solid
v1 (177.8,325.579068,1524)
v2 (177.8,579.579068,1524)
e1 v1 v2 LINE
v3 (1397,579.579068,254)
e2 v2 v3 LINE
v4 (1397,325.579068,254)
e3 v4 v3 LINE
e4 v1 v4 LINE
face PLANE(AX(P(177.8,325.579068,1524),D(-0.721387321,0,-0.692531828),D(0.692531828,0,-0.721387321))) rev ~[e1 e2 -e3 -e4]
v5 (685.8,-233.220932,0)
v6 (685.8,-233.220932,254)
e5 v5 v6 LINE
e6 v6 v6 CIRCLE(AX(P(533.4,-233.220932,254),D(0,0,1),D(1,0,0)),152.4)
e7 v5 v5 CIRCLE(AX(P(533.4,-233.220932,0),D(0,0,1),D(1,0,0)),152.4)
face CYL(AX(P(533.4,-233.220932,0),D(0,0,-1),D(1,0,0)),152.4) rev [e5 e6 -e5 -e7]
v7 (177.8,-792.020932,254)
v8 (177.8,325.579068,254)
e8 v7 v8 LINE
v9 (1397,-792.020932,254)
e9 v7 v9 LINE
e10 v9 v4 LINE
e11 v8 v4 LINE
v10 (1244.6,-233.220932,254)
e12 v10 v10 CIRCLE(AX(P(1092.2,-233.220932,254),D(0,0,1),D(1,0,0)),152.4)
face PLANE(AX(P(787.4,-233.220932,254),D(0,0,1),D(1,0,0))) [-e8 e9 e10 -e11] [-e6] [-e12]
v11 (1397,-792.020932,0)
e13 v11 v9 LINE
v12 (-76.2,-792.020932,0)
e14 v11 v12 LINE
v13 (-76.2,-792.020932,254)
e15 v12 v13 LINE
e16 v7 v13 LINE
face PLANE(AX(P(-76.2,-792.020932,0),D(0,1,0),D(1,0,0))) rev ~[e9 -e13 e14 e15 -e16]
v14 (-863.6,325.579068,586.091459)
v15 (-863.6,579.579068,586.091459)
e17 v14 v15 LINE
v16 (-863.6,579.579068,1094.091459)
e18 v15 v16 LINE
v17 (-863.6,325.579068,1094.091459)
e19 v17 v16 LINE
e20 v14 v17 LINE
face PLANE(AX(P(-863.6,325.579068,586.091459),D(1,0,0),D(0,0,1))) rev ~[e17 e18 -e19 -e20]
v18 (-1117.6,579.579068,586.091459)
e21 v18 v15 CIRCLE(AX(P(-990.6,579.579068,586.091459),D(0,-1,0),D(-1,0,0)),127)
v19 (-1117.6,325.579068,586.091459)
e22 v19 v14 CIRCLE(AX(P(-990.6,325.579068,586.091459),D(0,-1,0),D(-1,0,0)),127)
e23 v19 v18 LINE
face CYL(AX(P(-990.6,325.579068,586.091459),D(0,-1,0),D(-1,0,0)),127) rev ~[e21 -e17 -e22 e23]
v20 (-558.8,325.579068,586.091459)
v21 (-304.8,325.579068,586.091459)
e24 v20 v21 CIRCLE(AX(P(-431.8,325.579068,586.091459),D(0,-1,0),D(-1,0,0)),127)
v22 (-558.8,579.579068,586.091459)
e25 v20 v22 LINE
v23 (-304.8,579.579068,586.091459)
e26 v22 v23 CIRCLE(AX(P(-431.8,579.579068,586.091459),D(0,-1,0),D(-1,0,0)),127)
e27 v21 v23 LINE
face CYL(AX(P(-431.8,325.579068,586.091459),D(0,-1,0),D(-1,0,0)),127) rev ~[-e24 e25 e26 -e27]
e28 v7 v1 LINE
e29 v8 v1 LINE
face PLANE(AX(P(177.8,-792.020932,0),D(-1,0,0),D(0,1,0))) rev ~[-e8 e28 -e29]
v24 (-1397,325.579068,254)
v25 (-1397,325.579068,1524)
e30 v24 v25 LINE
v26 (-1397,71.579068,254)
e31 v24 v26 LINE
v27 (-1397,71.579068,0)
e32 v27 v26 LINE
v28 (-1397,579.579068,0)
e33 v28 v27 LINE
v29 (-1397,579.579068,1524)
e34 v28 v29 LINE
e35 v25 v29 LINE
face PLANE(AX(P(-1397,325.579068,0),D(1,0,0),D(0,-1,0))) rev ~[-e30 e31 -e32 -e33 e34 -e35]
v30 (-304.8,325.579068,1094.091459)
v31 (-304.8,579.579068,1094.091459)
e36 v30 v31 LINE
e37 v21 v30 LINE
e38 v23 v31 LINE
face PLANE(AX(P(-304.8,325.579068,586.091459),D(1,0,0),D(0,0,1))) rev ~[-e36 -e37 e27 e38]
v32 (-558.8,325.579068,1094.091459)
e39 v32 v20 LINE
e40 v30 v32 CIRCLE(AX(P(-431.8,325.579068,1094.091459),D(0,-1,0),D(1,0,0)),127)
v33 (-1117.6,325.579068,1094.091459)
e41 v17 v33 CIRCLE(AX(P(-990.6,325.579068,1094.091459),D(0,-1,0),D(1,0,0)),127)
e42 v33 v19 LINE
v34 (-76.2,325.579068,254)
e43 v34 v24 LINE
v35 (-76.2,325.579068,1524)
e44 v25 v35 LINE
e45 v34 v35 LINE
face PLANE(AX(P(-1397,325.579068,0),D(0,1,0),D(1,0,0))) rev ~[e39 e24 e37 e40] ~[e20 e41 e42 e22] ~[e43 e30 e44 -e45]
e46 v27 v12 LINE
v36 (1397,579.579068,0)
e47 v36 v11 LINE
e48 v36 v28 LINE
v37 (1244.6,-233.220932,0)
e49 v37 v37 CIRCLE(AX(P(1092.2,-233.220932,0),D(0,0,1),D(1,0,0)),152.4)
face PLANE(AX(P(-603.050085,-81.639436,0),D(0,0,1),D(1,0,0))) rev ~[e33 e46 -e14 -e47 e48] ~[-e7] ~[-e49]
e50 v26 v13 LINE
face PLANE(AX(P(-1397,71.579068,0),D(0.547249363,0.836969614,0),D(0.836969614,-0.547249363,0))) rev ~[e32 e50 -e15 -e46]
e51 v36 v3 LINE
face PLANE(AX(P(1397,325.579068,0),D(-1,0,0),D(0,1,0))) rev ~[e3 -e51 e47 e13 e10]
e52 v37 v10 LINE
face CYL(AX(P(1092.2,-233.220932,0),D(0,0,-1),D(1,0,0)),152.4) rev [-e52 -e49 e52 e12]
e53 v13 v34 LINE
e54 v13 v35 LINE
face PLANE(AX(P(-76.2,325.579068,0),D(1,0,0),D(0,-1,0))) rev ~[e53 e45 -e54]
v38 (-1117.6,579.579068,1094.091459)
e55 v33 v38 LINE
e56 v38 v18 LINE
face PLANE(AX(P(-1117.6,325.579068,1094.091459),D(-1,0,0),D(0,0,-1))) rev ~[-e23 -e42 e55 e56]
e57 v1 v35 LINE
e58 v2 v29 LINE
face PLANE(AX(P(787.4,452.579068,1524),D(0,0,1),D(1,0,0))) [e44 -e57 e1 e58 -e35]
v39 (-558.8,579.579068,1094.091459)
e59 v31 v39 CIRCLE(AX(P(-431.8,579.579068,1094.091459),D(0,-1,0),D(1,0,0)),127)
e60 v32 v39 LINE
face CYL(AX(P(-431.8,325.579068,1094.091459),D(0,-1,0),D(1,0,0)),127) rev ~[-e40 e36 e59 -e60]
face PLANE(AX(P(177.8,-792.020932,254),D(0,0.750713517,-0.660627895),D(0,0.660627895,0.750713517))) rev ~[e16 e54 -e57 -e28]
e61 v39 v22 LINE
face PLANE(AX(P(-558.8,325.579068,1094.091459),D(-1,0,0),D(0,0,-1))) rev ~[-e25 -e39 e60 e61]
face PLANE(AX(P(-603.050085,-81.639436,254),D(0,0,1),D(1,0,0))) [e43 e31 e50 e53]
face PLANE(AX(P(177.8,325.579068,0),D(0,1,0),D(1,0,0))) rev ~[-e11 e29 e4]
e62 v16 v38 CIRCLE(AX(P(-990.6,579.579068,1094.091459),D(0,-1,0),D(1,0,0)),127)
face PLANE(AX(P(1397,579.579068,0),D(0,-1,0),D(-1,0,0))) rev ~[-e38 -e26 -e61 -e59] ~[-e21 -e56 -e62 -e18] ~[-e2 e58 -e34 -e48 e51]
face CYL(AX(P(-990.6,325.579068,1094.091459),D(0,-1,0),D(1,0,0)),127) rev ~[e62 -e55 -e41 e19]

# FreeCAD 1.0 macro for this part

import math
import FreeCAD as App
import Part
import Sketcher

V = App.Vector
Q = App.Units.Quantity


def add_polygon(sketch, points):
    """Adds a closed chain of lines whose ends are joined by coincident constraints."""
    first, n = sketch.GeometryCount, len(points)
    for a, b in zip(points, points[1:] + points[:1]):
        sketch.addGeometry(Part.LineSegment(App.Vector(*a, 0), App.Vector(*b, 0)), False)
    for i in range(n):
        sketch.addConstraint(Sketcher.Constraint("Coincident", first + i, 2, first + (i + 1) % n, 1))

doc = App.newDocument("Part")
body = doc.addObject("PartDesign::Body", "Body")

# Sketch on XY plane
sketch1 = doc.addObject("Sketcher::SketchObject", "Sketch")
body.addObject(sketch1)
sketch1.AttachmentSupport = (doc.XY_Plane, [""])
sketch1.MapMode = "FlatFace"
add_polygon(sketch1, [(178, 326), (1397, 326), (1397, 580), (-1397, 580), (-1397, 326), (-76, 326), (-76, -792), (178, -792)])  # lines 0-7
sketch1.addConstraint([
    Sketcher.Constraint("Horizontal", 0),
    Sketcher.Constraint("Vertical", 1),
    Sketcher.Constraint("Horizontal", 2),
    Sketcher.Constraint("Vertical", 3),
    Sketcher.Constraint("Horizontal", 4),
    Sketcher.Constraint("Vertical", 5),
    Sketcher.Constraint("Horizontal", 6),
    Sketcher.Constraint("Vertical", 7),
    Sketcher.Constraint("Symmetric", 0, 2, 3, 2, -2),
    Sketcher.Constraint("Equal", 6, 1),
    Sketcher.Constraint("DistanceX", 0, 1, 0, 2, Q("48 in")),
    Sketcher.Constraint("DistanceX", 2, 2, 2, 1, Q("110 in")),
    Sketcher.Constraint("DistanceX", 4, 1, 4, 2, Q("52 in")),
    Sketcher.Constraint("DistanceY", 5, 2, 5, 1, Q("44 in")),
    Sketcher.Constraint("DistanceY", -1, 1, 0, 2, 325.579068),
])
pad1 = doc.addObject("PartDesign::Pad", "Pad")
body.addObject(pad1)
pad1.Profile = sketch1
pad1.Length = Q("60 in")

# Sketch on XY plane
sketch2 = doc.addObject("Sketcher::SketchObject", "Sketch001")
body.addObject(sketch2)
sketch2.AttachmentSupport = (doc.XY_Plane, [""])
sketch2.MapMode = "FlatFace"
add_polygon(sketch2, [(-76, 326), (-1397, 326), (-1397, 72), (-76, -792)])  # lines 0-3
add_polygon(sketch2, [(178, 326), (178, -792), (1397, -792), (1397, 326)])  # lines 4-7
sketch2.addGeometry(Part.Circle(V(533, -233, 0), V(0, 0, 1), 152), False)  # 8
sketch2.addGeometry(Part.Circle(V(1092, -233, 0), V(0, 0, 1), 152), False)  # 9
sketch2.addConstraint([
    Sketcher.Constraint("Horizontal", 0),
    Sketcher.Constraint("Vertical", 1),
    Sketcher.Constraint("Vertical", 3),
    Sketcher.Constraint("Vertical", 4),
    Sketcher.Constraint("Horizontal", 5),
    Sketcher.Constraint("Vertical", 6),
    Sketcher.Constraint("Horizontal", 7),
    Sketcher.Constraint("Equal", 8, 9),
    Sketcher.Constraint("Symmetric", 0, 2, 6, 2, -2),
    Sketcher.Constraint("Horizontal", 8, 3, 9, 3),
    Sketcher.Constraint("Horizontal", 2, 2, 4, 2),
    Sketcher.Constraint("Diameter", 8, Q("12 in")),
    Sketcher.Constraint("DistanceX", 0, 2, 0, 1, Q("52 in")),
    Sketcher.Constraint("DistanceX", 5, 1, 5, 2, Q("48 in")),
    Sketcher.Constraint("DistanceY", 1, 2, 1, 1, Q("10 in")),
    Sketcher.Constraint("DistanceY", 3, 1, 3, 2, Q("44 in")),
    Sketcher.Constraint("DistanceX", -1, 1, 8, 3, Q("21 in")),
    Sketcher.Constraint("DistanceX", -1, 1, 9, 3, Q("43 in")),
    Sketcher.Constraint("DistanceX", 0, 2, -1, 1, Q("55 in")),
    Sketcher.Constraint("DistanceY", 8, 3, 0, 2, Q("22 in")),
    Sketcher.Constraint("DistanceY", 8, 3, -1, 1, 233.220932),
])
pad2 = doc.addObject("PartDesign::Pad", "Pad001")
body.addObject(pad2)
pad2.Profile = sketch2
pad2.Length = Q("10 in")

# Sketch on XZ plane
sketch3 = doc.addObject("Sketcher::SketchObject", "Sketch002")
body.addObject(sketch3)
sketch3.AttachmentSupport = (doc.XZ_Plane, [""])
sketch3.MapMode = "FlatFace"
sketch3.AttachmentOffset = App.Placement(V(0, 0, -325.579068), App.Rotation())
add_polygon(sketch3, [(1397, 1524), (178, 1524), (1397, 254)])  # lines 0-2
sketch3.addConstraint([
    Sketcher.Constraint("Horizontal", 0),
    Sketcher.Constraint("Vertical", 2),
    Sketcher.Constraint("DistanceX", 0, 2, 0, 1, Q("48 in")),
    Sketcher.Constraint("DistanceY", 2, 1, 2, 2, Q("50 in")),
    Sketcher.Constraint("DistanceX", -1, 1, 0, 2, Q("7 in")),
    Sketcher.Constraint("DistanceY", -1, 1, 0, 2, Q("60 in")),
])
pocket1 = doc.addObject("PartDesign::Pocket", "Pocket")
body.addObject(pocket1)
pocket1.Profile = sketch3
pocket1.Length = Q("35.1 in")

# Sketch on YZ plane
sketch4 = doc.addObject("Sketcher::SketchObject", "Sketch003")
body.addObject(sketch4)
sketch4.AttachmentSupport = (doc.YZ_Plane, [""])
sketch4.MapMode = "FlatFace"
sketch4.AttachmentOffset = App.Placement(V(0, 0, 7 * 25.4), App.Rotation())
add_polygon(sketch4, [(-792, 254), (326, 1524), (-792, 1524)])  # lines 0-2
sketch4.addConstraint([
    Sketcher.Constraint("Horizontal", 1),
    Sketcher.Constraint("Vertical", 2),
    Sketcher.Constraint("DistanceX", 1, 2, 1, 1, Q("44 in")),
    Sketcher.Constraint("DistanceY", 2, 2, 2, 1, Q("50 in")),
    Sketcher.Constraint("DistanceY", -1, 1, 0, 2, Q("60 in")),
    Sketcher.Constraint("DistanceX", -1, 1, 0, 2, 325.579068),
])
pocket2 = doc.addObject("PartDesign::Pocket", "Pocket001")
body.addObject(pocket2)
pocket2.Profile = sketch4
pocket2.Length = Q("41.8 in")

# Sketch on XZ plane
sketch5 = doc.addObject("Sketcher::SketchObject", "Sketch004")
body.addObject(sketch5)
sketch5.AttachmentSupport = (doc.XZ_Plane, [""])
sketch5.MapMode = "FlatFace"
sketch5.AttachmentOffset = App.Placement(V(0, 0, -325.579068), App.Rotation())
sketch5.addGeometry([
    Part.LineSegment(V(-305, 586, 0), V(-305, 1094, 0)),  # 0
    Part.ArcOfCircle(Part.Circle(V(-432, 1094, 0), V(0, 0, 1), 127), math.radians(0), math.radians(180)),  # 1
    Part.LineSegment(V(-559, 1094, 0), V(-559, 586, 0)),  # 2
    Part.ArcOfCircle(Part.Circle(V(-432, 586, 0), V(0, 0, 1), 127), math.radians(180), math.radians(360)),  # 3
    Part.LineSegment(V(-864, 586, 0), V(-864, 1094, 0)),  # 4
    Part.ArcOfCircle(Part.Circle(V(-991, 1094, 0), V(0, 0, 1), 127), math.radians(0), math.radians(180)),  # 5
    Part.LineSegment(V(-1118, 1094, 0), V(-1118, 586, 0)),  # 6
    Part.ArcOfCircle(Part.Circle(V(-991, 586, 0), V(0, 0, 1), 127), math.radians(180), math.radians(360)),  # 7
], False)
sketch5.addConstraint([
    Sketcher.Constraint("Tangent", 0, 2, 1, 1),
    Sketcher.Constraint("Tangent", 1, 2, 2, 1),
    Sketcher.Constraint("Tangent", 2, 2, 3, 1),
    Sketcher.Constraint("Tangent", 3, 2, 0, 1),
    Sketcher.Constraint("Tangent", 4, 2, 5, 1),
    Sketcher.Constraint("Tangent", 5, 2, 6, 1),
    Sketcher.Constraint("Tangent", 6, 2, 7, 1),
    Sketcher.Constraint("Tangent", 7, 2, 4, 1),
    Sketcher.Constraint("Vertical", 0),
    Sketcher.Constraint("Vertical", 2),
    Sketcher.Constraint("Vertical", 4),
    Sketcher.Constraint("Vertical", 6),
    Sketcher.Constraint("Equal", 3, 5),
    Sketcher.Constraint("Horizontal", 1, 3, 5, 3),
    Sketcher.Constraint("Horizontal", 3, 3, 7, 3),
    Sketcher.Constraint("Radius", 1, Q("5 in")),
    Sketcher.Constraint("DistanceY", 0, 1, 0, 2, Q("20 in")),
    Sketcher.Constraint("DistanceX", 1, 3, -1, 1, Q("17 in")),
    Sketcher.Constraint("DistanceX", 5, 3, -1, 1, Q("39 in")),
    Sketcher.Constraint("DistanceY", -1, 1, 1, 3, 1094.091459),
])
pocket3 = doc.addObject("PartDesign::Pocket", "Pocket002")
body.addObject(pocket3)
pocket3.Profile = sketch5
pocket3.Length = Q("27.1 in")

doc.recompute()
